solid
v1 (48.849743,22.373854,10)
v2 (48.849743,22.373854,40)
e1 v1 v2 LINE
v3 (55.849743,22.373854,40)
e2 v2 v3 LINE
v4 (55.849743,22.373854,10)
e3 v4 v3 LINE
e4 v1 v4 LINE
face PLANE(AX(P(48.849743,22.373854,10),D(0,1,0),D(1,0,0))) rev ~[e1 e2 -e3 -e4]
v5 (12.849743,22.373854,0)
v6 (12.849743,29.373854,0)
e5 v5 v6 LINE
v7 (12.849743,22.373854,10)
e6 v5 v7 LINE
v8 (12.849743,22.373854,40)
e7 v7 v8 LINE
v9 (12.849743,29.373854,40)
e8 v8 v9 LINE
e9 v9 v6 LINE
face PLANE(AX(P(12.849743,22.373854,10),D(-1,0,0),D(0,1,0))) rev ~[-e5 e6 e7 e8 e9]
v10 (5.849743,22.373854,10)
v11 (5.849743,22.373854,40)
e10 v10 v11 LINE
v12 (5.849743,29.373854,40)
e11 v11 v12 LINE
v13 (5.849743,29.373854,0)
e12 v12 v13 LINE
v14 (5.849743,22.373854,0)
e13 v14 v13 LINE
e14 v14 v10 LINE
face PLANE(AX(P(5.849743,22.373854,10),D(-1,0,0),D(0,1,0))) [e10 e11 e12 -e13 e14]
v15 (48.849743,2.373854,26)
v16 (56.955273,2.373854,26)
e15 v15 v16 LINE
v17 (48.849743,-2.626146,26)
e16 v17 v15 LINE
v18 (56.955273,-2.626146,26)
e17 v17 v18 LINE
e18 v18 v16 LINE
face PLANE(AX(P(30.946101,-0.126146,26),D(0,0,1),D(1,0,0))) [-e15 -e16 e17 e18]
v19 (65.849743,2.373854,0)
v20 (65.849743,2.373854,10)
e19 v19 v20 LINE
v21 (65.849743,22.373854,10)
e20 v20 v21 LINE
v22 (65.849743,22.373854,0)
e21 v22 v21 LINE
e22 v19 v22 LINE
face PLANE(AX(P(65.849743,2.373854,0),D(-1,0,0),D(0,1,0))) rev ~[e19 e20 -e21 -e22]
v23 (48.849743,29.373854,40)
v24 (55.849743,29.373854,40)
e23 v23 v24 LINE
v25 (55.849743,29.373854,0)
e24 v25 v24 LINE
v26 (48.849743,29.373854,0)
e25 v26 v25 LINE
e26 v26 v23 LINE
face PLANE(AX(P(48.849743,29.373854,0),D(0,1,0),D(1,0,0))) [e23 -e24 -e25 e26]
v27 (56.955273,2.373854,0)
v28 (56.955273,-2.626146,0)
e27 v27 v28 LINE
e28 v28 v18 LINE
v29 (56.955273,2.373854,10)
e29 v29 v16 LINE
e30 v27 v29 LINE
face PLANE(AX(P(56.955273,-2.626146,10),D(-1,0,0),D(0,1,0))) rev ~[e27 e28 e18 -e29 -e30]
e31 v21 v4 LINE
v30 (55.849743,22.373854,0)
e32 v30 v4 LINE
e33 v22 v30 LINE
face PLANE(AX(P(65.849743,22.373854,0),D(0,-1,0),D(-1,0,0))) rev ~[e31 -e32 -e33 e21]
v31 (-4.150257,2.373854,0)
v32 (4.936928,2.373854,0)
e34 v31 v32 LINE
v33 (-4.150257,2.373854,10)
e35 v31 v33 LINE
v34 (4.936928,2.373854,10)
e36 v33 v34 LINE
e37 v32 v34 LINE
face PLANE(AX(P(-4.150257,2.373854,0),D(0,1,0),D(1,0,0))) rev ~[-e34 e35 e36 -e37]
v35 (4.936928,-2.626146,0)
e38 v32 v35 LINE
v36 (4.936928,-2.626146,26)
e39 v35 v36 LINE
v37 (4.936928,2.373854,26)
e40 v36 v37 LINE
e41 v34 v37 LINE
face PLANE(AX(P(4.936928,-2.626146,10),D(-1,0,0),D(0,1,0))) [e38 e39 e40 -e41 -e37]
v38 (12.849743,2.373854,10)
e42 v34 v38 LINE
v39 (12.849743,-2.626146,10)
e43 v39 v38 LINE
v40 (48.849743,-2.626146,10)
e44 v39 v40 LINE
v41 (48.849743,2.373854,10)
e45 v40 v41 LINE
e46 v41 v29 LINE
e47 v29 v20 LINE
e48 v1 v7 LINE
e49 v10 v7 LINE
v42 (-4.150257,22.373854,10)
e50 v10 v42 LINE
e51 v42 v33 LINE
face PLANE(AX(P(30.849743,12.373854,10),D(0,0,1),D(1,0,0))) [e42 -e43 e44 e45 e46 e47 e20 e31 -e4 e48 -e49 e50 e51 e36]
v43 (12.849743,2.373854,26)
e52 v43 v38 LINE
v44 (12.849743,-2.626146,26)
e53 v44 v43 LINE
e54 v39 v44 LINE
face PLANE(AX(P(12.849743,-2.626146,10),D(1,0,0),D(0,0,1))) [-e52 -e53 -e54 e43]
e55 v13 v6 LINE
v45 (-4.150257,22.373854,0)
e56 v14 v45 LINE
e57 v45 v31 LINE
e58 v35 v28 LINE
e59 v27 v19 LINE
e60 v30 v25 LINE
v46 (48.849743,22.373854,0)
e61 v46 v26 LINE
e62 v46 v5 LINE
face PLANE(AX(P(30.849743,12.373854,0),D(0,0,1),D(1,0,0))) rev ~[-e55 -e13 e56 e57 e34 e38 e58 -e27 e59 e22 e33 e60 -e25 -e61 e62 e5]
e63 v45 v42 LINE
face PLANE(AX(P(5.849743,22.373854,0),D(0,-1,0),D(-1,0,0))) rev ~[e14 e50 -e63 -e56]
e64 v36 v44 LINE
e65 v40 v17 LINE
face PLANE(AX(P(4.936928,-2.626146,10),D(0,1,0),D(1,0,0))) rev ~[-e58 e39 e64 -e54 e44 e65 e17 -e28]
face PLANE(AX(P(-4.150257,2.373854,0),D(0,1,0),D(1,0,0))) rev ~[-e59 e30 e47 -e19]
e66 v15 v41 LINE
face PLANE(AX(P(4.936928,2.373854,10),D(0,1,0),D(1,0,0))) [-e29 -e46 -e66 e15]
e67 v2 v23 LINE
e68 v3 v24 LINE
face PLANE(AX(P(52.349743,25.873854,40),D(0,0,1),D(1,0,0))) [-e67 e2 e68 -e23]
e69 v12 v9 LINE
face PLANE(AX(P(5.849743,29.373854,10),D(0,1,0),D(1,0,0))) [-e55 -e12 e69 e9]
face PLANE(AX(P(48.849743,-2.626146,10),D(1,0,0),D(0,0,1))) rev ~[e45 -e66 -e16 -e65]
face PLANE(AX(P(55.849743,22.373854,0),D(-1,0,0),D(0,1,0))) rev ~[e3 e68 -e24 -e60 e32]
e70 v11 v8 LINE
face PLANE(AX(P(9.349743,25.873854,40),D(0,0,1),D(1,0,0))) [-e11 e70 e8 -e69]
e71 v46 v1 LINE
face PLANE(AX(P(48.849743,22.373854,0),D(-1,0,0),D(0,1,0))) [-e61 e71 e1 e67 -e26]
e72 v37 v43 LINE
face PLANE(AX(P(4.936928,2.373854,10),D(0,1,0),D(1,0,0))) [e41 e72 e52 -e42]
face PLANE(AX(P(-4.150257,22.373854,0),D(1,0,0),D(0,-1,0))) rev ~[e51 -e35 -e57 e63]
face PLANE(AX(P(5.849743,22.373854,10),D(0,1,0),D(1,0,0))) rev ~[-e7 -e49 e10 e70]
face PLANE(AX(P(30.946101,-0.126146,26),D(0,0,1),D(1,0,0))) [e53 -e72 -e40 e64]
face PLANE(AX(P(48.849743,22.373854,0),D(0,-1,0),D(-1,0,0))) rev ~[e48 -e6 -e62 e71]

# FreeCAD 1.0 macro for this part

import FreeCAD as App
import Part
import Sketcher

V = App.Vector

doc = App.newDocument("Part")
body = doc.addObject("PartDesign::Body", "Body")

sketch1 = body.newObject("Sketcher::SketchObject", "Sketch")
sketch1.AttachmentSupport = (doc.getObject("XY_Plane"), [""])
sketch1.MapMode = "FlatFace"
sketch1.addGeometry([
    Part.LineSegment(V(66, 2, 0), V(66, 22, 0)),
    Part.LineSegment(V(66, 22, 0), V(56, 22, 0)),
    Part.LineSegment(V(56, 22, 0), V(56, 29, 0)),
    Part.LineSegment(V(56, 29, 0), V(49, 29, 0)),
    Part.LineSegment(V(49, 29, 0), V(49, 22, 0)),
    Part.LineSegment(V(49, 22, 0), V(13, 22, 0)),
    Part.LineSegment(V(13, 22, 0), V(13, 29, 0)),
    Part.LineSegment(V(13, 29, 0), V(6, 29, 0)),
    Part.LineSegment(V(6, 29, 0), V(6, 22, 0)),
    Part.LineSegment(V(6, 22, 0), V(-4, 22, 0)),
    Part.LineSegment(V(-4, 22, 0), V(-4, 2, 0)),
    Part.LineSegment(V(-4, 2, 0), V(66, 2, 0)),
], False)
sketch1.addConstraint([
    Sketcher.Constraint("Coincident", 0, 2, 1, 1),
    Sketcher.Constraint("Coincident", 1, 2, 2, 1),
    Sketcher.Constraint("Coincident", 2, 2, 3, 1),
    Sketcher.Constraint("Coincident", 3, 2, 4, 1),
    Sketcher.Constraint("Coincident", 4, 2, 5, 1),
    Sketcher.Constraint("Coincident", 5, 2, 6, 1),
    Sketcher.Constraint("Coincident", 6, 2, 7, 1),
    Sketcher.Constraint("Coincident", 7, 2, 8, 1),
    Sketcher.Constraint("Coincident", 8, 2, 9, 1),
    Sketcher.Constraint("Coincident", 9, 2, 10, 1),
    Sketcher.Constraint("Coincident", 10, 2, 11, 1),
    Sketcher.Constraint("Coincident", 11, 2, 0, 1),
    Sketcher.Constraint("Vertical", 0),
    Sketcher.Constraint("Horizontal", 1),
    Sketcher.Constraint("Vertical", 2),
    Sketcher.Constraint("Horizontal", 3),
    Sketcher.Constraint("Vertical", 4),
    Sketcher.Constraint("Horizontal", 5),
    Sketcher.Constraint("Vertical", 6),
    Sketcher.Constraint("Horizontal", 7),
    Sketcher.Constraint("Vertical", 8),
    Sketcher.Constraint("Horizontal", 9),
    Sketcher.Constraint("Vertical", 10),
    Sketcher.Constraint("Horizontal", 11),
    Sketcher.Constraint("Horizontal", 1, 2, 4, 2),
    Sketcher.Constraint("Horizontal", 3, 2, 6, 2),
    Sketcher.Constraint("Horizontal", 5, 2, 8, 2),
    Sketcher.Constraint("Equal", 3, 7),
    Sketcher.Constraint("Equal", 1, 9),
    Sketcher.Constraint("Equal", 7, 2),
    Sketcher.Constraint("DistanceX", 1, 2, 1, 1, 10.0),
    Sketcher.Constraint("DistanceX", 3, 2, 3, 1, 7.0),
    Sketcher.Constraint("DistanceX", 5, 2, 5, 1, 36.0),
    Sketcher.Constraint("DistanceY", 0, 1, 0, 2, 20.0),
    Sketcher.Constraint("DistanceX", -1, 1, 0, 2, 65.849743),
    Sketcher.Constraint("DistanceY", -1, 1, 0, 2, 22.373854),
])
pad1 = body.newObject("PartDesign::Pad", "Pad")
pad1.Profile = sketch1
pad1.Length = 10

sketch2 = body.newObject("Sketcher::SketchObject", "Sketch001")
sketch2.AttachmentSupport = (doc.getObject("XY_Plane"), [""])
sketch2.MapMode = "FlatFace"
sketch2.AttachmentOffset = App.Placement(V(0, 0, 10), App.Rotation())
sketch2.addGeometry([
    Part.LineSegment(V(6, 29, 0), V(6, 22, 0)),
    Part.LineSegment(V(6, 22, 0), V(13, 22, 0)),
    Part.LineSegment(V(13, 22, 0), V(13, 29, 0)),
    Part.LineSegment(V(13, 29, 0), V(6, 29, 0)),
    Part.LineSegment(V(49, 29, 0), V(49, 22, 0)),
    Part.LineSegment(V(49, 22, 0), V(56, 22, 0)),
    Part.LineSegment(V(56, 22, 0), V(56, 29, 0)),
    Part.LineSegment(V(56, 29, 0), V(49, 29, 0)),
], False)
sketch2.addConstraint([
    Sketcher.Constraint("Coincident", 0, 2, 1, 1),
    Sketcher.Constraint("Coincident", 1, 2, 2, 1),
    Sketcher.Constraint("Coincident", 2, 2, 3, 1),
    Sketcher.Constraint("Coincident", 3, 2, 0, 1),
    Sketcher.Constraint("Coincident", 4, 2, 5, 1),
    Sketcher.Constraint("Coincident", 5, 2, 6, 1),
    Sketcher.Constraint("Coincident", 6, 2, 7, 1),
    Sketcher.Constraint("Coincident", 7, 2, 4, 1),
    Sketcher.Constraint("Vertical", 0),
    Sketcher.Constraint("Horizontal", 1),
    Sketcher.Constraint("Vertical", 2),
    Sketcher.Constraint("Horizontal", 3),
    Sketcher.Constraint("Vertical", 4),
    Sketcher.Constraint("Horizontal", 5),
    Sketcher.Constraint("Vertical", 6),
    Sketcher.Constraint("Horizontal", 7),
    Sketcher.Constraint("Horizontal", 1, 2, 4, 2),
    Sketcher.Constraint("Horizontal", 3, 2, 6, 2),
    Sketcher.Constraint("Equal", 3, 5),
    Sketcher.Constraint("Equal", 7, 0),
    Sketcher.Constraint("DistanceX", 1, 1, 1, 2, 7.0),
    Sketcher.Constraint("DistanceX", 1, 2, 4, 2, 36.0),
    Sketcher.Constraint("DistanceX", -1, 1, 0, 2, 5.849743),
    Sketcher.Constraint("DistanceY", -1, 1, 0, 2, 22.373854),
])
pad2 = body.newObject("PartDesign::Pad", "Pad001")
pad2.Profile = sketch2
pad2.Length = 30

sketch3 = body.newObject("Sketcher::SketchObject", "Sketch002")
sketch3.AttachmentSupport = (doc.getObject("XZ_Plane"), [""])
sketch3.MapMode = "FlatFace"
sketch3.AttachmentOffset = App.Placement(V(0, 0, -2.373854), App.Rotation())
sketch3.addGeometry([
    Part.LineSegment(V(5, 10, 0), V(5, 0, 0)),
    Part.LineSegment(V(5, 0, 0), V(57, 0, 0)),
    Part.LineSegment(V(57, 0, 0), V(57, 10, 0)),
    Part.LineSegment(V(57, 10, 0), V(5, 10, 0)),
], False)
sketch3.addConstraint([
    Sketcher.Constraint("Coincident", 0, 2, 1, 1),
    Sketcher.Constraint("Coincident", 1, 2, 2, 1),
    Sketcher.Constraint("Coincident", 2, 2, 3, 1),
    Sketcher.Constraint("Coincident", 3, 2, 0, 1),
    Sketcher.Constraint("Vertical", 0),
    Sketcher.Constraint("Horizontal", 1),
    Sketcher.Constraint("Vertical", 2),
    Sketcher.Constraint("Horizontal", 3),
    Sketcher.Constraint("PointOnObject", 0, 2, -1),
    Sketcher.Constraint("DistanceY", 0, 2, 0, 1, 10.0),
    Sketcher.Constraint("DistanceX", 1, 1, 1, 2, 52.018345),
    Sketcher.Constraint("DistanceX", -1, 1, 0, 2, 4.936928),
])
pad3 = body.newObject("PartDesign::Pad", "Pad002")
pad3.Profile = sketch3
pad3.Length = 5

sketch4 = body.newObject("Sketcher::SketchObject", "Sketch003")
sketch4.AttachmentSupport = (doc.getObject("XY_Plane"), [""])
sketch4.MapMode = "FlatFace"
sketch4.AttachmentOffset = App.Placement(V(0, 0, 10), App.Rotation())
sketch4.addGeometry([
    Part.LineSegment(V(5, 2, 0), V(5, -3, 0)),
    Part.LineSegment(V(5, -3, 0), V(57, -3, 0)),
    Part.LineSegment(V(57, -3, 0), V(57, 2, 0)),
    Part.LineSegment(V(57, 2, 0), V(5, 2, 0)),
], False)
sketch4.addConstraint([
    Sketcher.Constraint("Coincident", 0, 2, 1, 1),
    Sketcher.Constraint("Coincident", 1, 2, 2, 1),
    Sketcher.Constraint("Coincident", 2, 2, 3, 1),
    Sketcher.Constraint("Coincident", 3, 2, 0, 1),
    Sketcher.Constraint("Vertical", 0),
    Sketcher.Constraint("Horizontal", 1),
    Sketcher.Constraint("Vertical", 2),
    Sketcher.Constraint("Horizontal", 3),
    Sketcher.Constraint("DistanceY", 0, 2, 0, 1, 5.0),
    Sketcher.Constraint("DistanceX", 1, 1, 1, 2, 52.018345),
    Sketcher.Constraint("DistanceX", -1, 1, 0, 2, 4.936928),
    Sketcher.Constraint("DistanceY", 0, 2, -1, 1, 2.626146),
])
pad4 = body.newObject("PartDesign::Pad", "Pad003")
pad4.Profile = sketch4
pad4.Length = 16

sketch5 = body.newObject("Sketcher::SketchObject", "Sketch004")
sketch5.AttachmentSupport = (doc.getObject("XZ_Plane"), [""])
sketch5.MapMode = "FlatFace"
sketch5.AttachmentOffset = App.Placement(V(0, 0, 2.626146), App.Rotation())
sketch5.addGeometry([
    Part.LineSegment(V(13, 26, 0), V(13, 10, 0)),
    Part.LineSegment(V(13, 10, 0), V(49, 10, 0)),
    Part.LineSegment(V(49, 10, 0), V(49, 26, 0)),
    Part.LineSegment(V(49, 26, 0), V(13, 26, 0)),
], False)
sketch5.addConstraint([
    Sketcher.Constraint("Coincident", 0, 2, 1, 1),
    Sketcher.Constraint("Coincident", 1, 2, 2, 1),
    Sketcher.Constraint("Coincident", 2, 2, 3, 1),
    Sketcher.Constraint("Coincident", 3, 2, 0, 1),
    Sketcher.Constraint("Vertical", 0),
    Sketcher.Constraint("Horizontal", 1),
    Sketcher.Constraint("Vertical", 2),
    Sketcher.Constraint("Horizontal", 3),
    Sketcher.Constraint("DistanceX", 1, 1, 1, 2, 36.0),
    Sketcher.Constraint("DistanceY", 0, 2, 0, 1, 16.0),
    Sketcher.Constraint("DistanceY", -1, 1, 0, 2, 10.0),
    Sketcher.Constraint("DistanceX", -1, 1, 0, 2, 12.849743),
])
pocket1 = body.newObject("PartDesign::Pocket", "Pocket")
pocket1.Profile = sketch5
pocket1.Length = 25

sketch6 = body.newObject("Sketcher::SketchObject", "Sketch005")
sketch6.AttachmentSupport = (doc.getObject("XZ_Plane"), [""])
sketch6.MapMode = "FlatFace"
sketch6.AttachmentOffset = App.Placement(V(0, 0, 2.626146), App.Rotation())
sketch6.addGeometry([
    Part.LineSegment(V(13, 26, 0), V(13, 10, 0)),
    Part.LineSegment(V(13, 10, 0), V(49, 10, 0)),
    Part.LineSegment(V(49, 10, 0), V(49, 26, 0)),
    Part.LineSegment(V(49, 26, 0), V(13, 26, 0)),
], False)
sketch6.addConstraint([
    Sketcher.Constraint("Coincident", 0, 2, 1, 1),
    Sketcher.Constraint("Coincident", 1, 2, 2, 1),
    Sketcher.Constraint("Coincident", 2, 2, 3, 1),
    Sketcher.Constraint("Coincident", 3, 2, 0, 1),
    Sketcher.Constraint("Vertical", 0),
    Sketcher.Constraint("Horizontal", 1),
    Sketcher.Constraint("Vertical", 2),
    Sketcher.Constraint("Horizontal", 3),
    Sketcher.Constraint("DistanceX", 1, 1, 1, 2, 36.0),
    Sketcher.Constraint("DistanceY", 0, 2, 0, 1, 16.0),
    Sketcher.Constraint("DistanceY", -1, 1, 0, 2, 10.0),
    Sketcher.Constraint("DistanceX", -1, 1, 0, 2, 12.849743),
])
pocket2 = body.newObject("PartDesign::Pocket", "Pocket001")
pocket2.Profile = sketch6
pocket2.Length = 25

doc.recompute()
